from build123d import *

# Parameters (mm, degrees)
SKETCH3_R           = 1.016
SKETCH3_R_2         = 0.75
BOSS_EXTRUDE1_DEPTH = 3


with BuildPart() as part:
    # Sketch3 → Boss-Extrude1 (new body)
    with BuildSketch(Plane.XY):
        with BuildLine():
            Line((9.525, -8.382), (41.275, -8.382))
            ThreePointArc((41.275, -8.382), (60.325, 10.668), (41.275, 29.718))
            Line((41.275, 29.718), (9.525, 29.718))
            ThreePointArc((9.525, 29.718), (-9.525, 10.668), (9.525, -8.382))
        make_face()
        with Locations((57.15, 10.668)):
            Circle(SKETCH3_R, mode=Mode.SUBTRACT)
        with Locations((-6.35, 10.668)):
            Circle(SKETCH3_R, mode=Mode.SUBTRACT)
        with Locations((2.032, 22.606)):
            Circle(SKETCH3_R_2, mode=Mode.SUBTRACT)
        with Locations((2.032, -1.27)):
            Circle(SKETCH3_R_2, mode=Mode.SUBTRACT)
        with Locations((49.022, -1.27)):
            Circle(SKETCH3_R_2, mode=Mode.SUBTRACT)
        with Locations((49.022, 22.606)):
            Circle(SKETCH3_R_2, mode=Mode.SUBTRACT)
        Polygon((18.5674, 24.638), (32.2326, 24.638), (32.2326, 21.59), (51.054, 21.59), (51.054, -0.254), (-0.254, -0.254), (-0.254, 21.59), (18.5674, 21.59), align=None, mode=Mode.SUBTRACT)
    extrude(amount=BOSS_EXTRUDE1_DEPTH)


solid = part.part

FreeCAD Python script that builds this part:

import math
import FreeCAD as App
import Part
import Sketcher

V = App.Vector
Q = App.Units.Quantity


def add_polygon(sketch, points):
    """Adds a closed chain of lines whose ends are joined by coincident constraints."""
    first, n = sketch.GeometryCount, len(points)
    for a, b in zip(points, points[1:] + points[:1]):
        sketch.addGeometry(Part.LineSegment(App.Vector(*a, 0), App.Vector(*b, 0)), False)
    for i in range(n):
        sketch.addConstraint(Sketcher.Constraint("Coincident", first + i, 2, first + (i + 1) % n, 1))

doc = App.newDocument("Part")
body = doc.addObject("PartDesign::Body", "Body")

# Sketch on XY plane
sketch1 = body.newObject("Sketcher::SketchObject", "Sketch")
sketch1.AttachmentSupport = (doc.getObject("XY_Plane"), [""])
sketch1.MapMode = "FlatFace"
sketch1.addGeometry(Part.LineSegment(V(9.525, -8.382, 0), V(41.275, -8.382, 0)), False)  # 0
sketch1.addGeometry(Part.ArcOfCircle(Part.Circle(V(41.275, 10.668, 0), V(0, 0, 1), 19.05), math.radians(-90), math.radians(90)), False)  # 1
sketch1.addGeometry(Part.LineSegment(V(41.275, 29.718, 0), V(9.525, 29.718, 0)), False)  # 2
sketch1.addGeometry(Part.ArcOfCircle(Part.Circle(V(9.525, 10.668, 0), V(0, 0, 1), 19.05), math.radians(90), math.radians(270)), False)  # 3
sketch1.addGeometry(Part.Circle(V(2.032, -1.27, 0), V(0, 0, 1), 0.75), False)  # 4
sketch1.addGeometry(Part.Circle(V(-6.35, 10.668, 0), V(0, 0, 1), 1.016), False)  # 5
sketch1.addGeometry(Part.Circle(V(49.022, -1.27, 0), V(0, 0, 1), 0.75), False)  # 6
sketch1.addGeometry(Part.Circle(V(57.15, 10.668, 0), V(0, 0, 1), 1.016), False)  # 7
sketch1.addGeometry(Part.Circle(V(2.032, 22.606, 0), V(0, 0, 1), 0.75), False)  # 8
add_polygon(sketch1, [(18.5674, 21.59), (18.5674, 24.638), (32.2326, 24.638), (32.2326, 21.59), (51.054, 21.59), (51.054, -0.254), (-0.254, -0.254), (-0.254, 21.59)])  # lines 9-16
sketch1.addGeometry(Part.Circle(V(49.022, 22.606, 0), V(0, 0, 1), 0.75), False)  # 17
sketch1.addConstraint([
    Sketcher.Constraint("Tangent", 0, 2, 1, 1),
    Sketcher.Constraint("Tangent", 1, 2, 2, 1),
    Sketcher.Constraint("Tangent", 2, 2, 3, 1),
    Sketcher.Constraint("Tangent", 3, 2, 0, 1),
    Sketcher.Constraint("Horizontal", 0),
    Sketcher.Constraint("Horizontal", 2),
    Sketcher.Constraint("Vertical", 9),
    Sketcher.Constraint("Horizontal", 10),
    Sketcher.Constraint("Vertical", 11),
    Sketcher.Constraint("Horizontal", 12),
    Sketcher.Constraint("Vertical", 13),
    Sketcher.Constraint("Horizontal", 14),
    Sketcher.Constraint("Vertical", 15),
    Sketcher.Constraint("Horizontal", 16),
    Sketcher.Constraint("Equal", 4, 6),
    Sketcher.Constraint("Equal", 5, 7),
    Sketcher.Constraint("Equal", 6, 8),
    Sketcher.Constraint("Equal", 8, 17),
    Sketcher.Constraint("Horizontal", 3, 3, 5, 3),
    Sketcher.Constraint("Horizontal", 4, 3, 6, 3),
    Sketcher.Constraint("Horizontal", 5, 3, 7, 3),
    Sketcher.Constraint("Horizontal", 8, 3, 17, 3),
    Sketcher.Constraint("Horizontal", 12, 2, 15, 2),
    Sketcher.Constraint("Vertical", 4, 3, 8, 3),
    Sketcher.Constraint("Vertical", 6, 3, 17, 3),
    Sketcher.Constraint("Equal", 12, 16),
    Sketcher.Constraint("Diameter", 5, Q("0.08 in")),
    Sketcher.Constraint("Radius", 1, Q("0.75 in")),
    Sketcher.Constraint("DistanceX", 0, 1, 0, 2, Q("1.25 in")),
    Sketcher.Constraint("DistanceX", 14, 2, 14, 1, Q("2.02 in")),
    Sketcher.Constraint("DistanceY", 9, 1, 9, 2, Q("0.12 in")),
    Sketcher.Constraint("DistanceY", 13, 2, 13, 1, Q("0.86 in")),
    Sketcher.Constraint("DistanceX", 5, 3, 7, 3, Q("2.5 in")),
    Sketcher.Constraint("DistanceY", 9, 2, 2, 2, Q("0.2 in")),
    Sketcher.Constraint("DistanceY", 14, 2, 8, 3, Q("0.9 in")),
    Sketcher.Constraint("Diameter", 4, 1.5),
    Sketcher.Constraint("DistanceX", 10, 1, 10, 2, Q("0.538 in")),
    Sketcher.Constraint("DistanceY", -1, 1, 1, 3, Q("0.42 in")),
    Sketcher.Constraint("DistanceX", -1, 1, 4, 3, Q("0.08 in")),
    Sketcher.Constraint("DistanceY", 4, 3, -1, 1, Q("0.05 in")),
    Sketcher.Constraint("DistanceX", 5, 3, -1, 1, Q("0.25 in")),
    Sketcher.Constraint("DistanceX", -1, 1, 6, 3, Q("1.93 in")),
    Sketcher.Constraint("DistanceX", -1, 1, 12, 2, Q("2.01 in")),
    Sketcher.Constraint("DistanceX", -1, 1, 1, 3, Q("1.625 in")),
])
pad1 = body.newObject("PartDesign::Pad", "Pad")
pad1.Profile = sketch1
pad1.Length = 3

doc.recompute()
